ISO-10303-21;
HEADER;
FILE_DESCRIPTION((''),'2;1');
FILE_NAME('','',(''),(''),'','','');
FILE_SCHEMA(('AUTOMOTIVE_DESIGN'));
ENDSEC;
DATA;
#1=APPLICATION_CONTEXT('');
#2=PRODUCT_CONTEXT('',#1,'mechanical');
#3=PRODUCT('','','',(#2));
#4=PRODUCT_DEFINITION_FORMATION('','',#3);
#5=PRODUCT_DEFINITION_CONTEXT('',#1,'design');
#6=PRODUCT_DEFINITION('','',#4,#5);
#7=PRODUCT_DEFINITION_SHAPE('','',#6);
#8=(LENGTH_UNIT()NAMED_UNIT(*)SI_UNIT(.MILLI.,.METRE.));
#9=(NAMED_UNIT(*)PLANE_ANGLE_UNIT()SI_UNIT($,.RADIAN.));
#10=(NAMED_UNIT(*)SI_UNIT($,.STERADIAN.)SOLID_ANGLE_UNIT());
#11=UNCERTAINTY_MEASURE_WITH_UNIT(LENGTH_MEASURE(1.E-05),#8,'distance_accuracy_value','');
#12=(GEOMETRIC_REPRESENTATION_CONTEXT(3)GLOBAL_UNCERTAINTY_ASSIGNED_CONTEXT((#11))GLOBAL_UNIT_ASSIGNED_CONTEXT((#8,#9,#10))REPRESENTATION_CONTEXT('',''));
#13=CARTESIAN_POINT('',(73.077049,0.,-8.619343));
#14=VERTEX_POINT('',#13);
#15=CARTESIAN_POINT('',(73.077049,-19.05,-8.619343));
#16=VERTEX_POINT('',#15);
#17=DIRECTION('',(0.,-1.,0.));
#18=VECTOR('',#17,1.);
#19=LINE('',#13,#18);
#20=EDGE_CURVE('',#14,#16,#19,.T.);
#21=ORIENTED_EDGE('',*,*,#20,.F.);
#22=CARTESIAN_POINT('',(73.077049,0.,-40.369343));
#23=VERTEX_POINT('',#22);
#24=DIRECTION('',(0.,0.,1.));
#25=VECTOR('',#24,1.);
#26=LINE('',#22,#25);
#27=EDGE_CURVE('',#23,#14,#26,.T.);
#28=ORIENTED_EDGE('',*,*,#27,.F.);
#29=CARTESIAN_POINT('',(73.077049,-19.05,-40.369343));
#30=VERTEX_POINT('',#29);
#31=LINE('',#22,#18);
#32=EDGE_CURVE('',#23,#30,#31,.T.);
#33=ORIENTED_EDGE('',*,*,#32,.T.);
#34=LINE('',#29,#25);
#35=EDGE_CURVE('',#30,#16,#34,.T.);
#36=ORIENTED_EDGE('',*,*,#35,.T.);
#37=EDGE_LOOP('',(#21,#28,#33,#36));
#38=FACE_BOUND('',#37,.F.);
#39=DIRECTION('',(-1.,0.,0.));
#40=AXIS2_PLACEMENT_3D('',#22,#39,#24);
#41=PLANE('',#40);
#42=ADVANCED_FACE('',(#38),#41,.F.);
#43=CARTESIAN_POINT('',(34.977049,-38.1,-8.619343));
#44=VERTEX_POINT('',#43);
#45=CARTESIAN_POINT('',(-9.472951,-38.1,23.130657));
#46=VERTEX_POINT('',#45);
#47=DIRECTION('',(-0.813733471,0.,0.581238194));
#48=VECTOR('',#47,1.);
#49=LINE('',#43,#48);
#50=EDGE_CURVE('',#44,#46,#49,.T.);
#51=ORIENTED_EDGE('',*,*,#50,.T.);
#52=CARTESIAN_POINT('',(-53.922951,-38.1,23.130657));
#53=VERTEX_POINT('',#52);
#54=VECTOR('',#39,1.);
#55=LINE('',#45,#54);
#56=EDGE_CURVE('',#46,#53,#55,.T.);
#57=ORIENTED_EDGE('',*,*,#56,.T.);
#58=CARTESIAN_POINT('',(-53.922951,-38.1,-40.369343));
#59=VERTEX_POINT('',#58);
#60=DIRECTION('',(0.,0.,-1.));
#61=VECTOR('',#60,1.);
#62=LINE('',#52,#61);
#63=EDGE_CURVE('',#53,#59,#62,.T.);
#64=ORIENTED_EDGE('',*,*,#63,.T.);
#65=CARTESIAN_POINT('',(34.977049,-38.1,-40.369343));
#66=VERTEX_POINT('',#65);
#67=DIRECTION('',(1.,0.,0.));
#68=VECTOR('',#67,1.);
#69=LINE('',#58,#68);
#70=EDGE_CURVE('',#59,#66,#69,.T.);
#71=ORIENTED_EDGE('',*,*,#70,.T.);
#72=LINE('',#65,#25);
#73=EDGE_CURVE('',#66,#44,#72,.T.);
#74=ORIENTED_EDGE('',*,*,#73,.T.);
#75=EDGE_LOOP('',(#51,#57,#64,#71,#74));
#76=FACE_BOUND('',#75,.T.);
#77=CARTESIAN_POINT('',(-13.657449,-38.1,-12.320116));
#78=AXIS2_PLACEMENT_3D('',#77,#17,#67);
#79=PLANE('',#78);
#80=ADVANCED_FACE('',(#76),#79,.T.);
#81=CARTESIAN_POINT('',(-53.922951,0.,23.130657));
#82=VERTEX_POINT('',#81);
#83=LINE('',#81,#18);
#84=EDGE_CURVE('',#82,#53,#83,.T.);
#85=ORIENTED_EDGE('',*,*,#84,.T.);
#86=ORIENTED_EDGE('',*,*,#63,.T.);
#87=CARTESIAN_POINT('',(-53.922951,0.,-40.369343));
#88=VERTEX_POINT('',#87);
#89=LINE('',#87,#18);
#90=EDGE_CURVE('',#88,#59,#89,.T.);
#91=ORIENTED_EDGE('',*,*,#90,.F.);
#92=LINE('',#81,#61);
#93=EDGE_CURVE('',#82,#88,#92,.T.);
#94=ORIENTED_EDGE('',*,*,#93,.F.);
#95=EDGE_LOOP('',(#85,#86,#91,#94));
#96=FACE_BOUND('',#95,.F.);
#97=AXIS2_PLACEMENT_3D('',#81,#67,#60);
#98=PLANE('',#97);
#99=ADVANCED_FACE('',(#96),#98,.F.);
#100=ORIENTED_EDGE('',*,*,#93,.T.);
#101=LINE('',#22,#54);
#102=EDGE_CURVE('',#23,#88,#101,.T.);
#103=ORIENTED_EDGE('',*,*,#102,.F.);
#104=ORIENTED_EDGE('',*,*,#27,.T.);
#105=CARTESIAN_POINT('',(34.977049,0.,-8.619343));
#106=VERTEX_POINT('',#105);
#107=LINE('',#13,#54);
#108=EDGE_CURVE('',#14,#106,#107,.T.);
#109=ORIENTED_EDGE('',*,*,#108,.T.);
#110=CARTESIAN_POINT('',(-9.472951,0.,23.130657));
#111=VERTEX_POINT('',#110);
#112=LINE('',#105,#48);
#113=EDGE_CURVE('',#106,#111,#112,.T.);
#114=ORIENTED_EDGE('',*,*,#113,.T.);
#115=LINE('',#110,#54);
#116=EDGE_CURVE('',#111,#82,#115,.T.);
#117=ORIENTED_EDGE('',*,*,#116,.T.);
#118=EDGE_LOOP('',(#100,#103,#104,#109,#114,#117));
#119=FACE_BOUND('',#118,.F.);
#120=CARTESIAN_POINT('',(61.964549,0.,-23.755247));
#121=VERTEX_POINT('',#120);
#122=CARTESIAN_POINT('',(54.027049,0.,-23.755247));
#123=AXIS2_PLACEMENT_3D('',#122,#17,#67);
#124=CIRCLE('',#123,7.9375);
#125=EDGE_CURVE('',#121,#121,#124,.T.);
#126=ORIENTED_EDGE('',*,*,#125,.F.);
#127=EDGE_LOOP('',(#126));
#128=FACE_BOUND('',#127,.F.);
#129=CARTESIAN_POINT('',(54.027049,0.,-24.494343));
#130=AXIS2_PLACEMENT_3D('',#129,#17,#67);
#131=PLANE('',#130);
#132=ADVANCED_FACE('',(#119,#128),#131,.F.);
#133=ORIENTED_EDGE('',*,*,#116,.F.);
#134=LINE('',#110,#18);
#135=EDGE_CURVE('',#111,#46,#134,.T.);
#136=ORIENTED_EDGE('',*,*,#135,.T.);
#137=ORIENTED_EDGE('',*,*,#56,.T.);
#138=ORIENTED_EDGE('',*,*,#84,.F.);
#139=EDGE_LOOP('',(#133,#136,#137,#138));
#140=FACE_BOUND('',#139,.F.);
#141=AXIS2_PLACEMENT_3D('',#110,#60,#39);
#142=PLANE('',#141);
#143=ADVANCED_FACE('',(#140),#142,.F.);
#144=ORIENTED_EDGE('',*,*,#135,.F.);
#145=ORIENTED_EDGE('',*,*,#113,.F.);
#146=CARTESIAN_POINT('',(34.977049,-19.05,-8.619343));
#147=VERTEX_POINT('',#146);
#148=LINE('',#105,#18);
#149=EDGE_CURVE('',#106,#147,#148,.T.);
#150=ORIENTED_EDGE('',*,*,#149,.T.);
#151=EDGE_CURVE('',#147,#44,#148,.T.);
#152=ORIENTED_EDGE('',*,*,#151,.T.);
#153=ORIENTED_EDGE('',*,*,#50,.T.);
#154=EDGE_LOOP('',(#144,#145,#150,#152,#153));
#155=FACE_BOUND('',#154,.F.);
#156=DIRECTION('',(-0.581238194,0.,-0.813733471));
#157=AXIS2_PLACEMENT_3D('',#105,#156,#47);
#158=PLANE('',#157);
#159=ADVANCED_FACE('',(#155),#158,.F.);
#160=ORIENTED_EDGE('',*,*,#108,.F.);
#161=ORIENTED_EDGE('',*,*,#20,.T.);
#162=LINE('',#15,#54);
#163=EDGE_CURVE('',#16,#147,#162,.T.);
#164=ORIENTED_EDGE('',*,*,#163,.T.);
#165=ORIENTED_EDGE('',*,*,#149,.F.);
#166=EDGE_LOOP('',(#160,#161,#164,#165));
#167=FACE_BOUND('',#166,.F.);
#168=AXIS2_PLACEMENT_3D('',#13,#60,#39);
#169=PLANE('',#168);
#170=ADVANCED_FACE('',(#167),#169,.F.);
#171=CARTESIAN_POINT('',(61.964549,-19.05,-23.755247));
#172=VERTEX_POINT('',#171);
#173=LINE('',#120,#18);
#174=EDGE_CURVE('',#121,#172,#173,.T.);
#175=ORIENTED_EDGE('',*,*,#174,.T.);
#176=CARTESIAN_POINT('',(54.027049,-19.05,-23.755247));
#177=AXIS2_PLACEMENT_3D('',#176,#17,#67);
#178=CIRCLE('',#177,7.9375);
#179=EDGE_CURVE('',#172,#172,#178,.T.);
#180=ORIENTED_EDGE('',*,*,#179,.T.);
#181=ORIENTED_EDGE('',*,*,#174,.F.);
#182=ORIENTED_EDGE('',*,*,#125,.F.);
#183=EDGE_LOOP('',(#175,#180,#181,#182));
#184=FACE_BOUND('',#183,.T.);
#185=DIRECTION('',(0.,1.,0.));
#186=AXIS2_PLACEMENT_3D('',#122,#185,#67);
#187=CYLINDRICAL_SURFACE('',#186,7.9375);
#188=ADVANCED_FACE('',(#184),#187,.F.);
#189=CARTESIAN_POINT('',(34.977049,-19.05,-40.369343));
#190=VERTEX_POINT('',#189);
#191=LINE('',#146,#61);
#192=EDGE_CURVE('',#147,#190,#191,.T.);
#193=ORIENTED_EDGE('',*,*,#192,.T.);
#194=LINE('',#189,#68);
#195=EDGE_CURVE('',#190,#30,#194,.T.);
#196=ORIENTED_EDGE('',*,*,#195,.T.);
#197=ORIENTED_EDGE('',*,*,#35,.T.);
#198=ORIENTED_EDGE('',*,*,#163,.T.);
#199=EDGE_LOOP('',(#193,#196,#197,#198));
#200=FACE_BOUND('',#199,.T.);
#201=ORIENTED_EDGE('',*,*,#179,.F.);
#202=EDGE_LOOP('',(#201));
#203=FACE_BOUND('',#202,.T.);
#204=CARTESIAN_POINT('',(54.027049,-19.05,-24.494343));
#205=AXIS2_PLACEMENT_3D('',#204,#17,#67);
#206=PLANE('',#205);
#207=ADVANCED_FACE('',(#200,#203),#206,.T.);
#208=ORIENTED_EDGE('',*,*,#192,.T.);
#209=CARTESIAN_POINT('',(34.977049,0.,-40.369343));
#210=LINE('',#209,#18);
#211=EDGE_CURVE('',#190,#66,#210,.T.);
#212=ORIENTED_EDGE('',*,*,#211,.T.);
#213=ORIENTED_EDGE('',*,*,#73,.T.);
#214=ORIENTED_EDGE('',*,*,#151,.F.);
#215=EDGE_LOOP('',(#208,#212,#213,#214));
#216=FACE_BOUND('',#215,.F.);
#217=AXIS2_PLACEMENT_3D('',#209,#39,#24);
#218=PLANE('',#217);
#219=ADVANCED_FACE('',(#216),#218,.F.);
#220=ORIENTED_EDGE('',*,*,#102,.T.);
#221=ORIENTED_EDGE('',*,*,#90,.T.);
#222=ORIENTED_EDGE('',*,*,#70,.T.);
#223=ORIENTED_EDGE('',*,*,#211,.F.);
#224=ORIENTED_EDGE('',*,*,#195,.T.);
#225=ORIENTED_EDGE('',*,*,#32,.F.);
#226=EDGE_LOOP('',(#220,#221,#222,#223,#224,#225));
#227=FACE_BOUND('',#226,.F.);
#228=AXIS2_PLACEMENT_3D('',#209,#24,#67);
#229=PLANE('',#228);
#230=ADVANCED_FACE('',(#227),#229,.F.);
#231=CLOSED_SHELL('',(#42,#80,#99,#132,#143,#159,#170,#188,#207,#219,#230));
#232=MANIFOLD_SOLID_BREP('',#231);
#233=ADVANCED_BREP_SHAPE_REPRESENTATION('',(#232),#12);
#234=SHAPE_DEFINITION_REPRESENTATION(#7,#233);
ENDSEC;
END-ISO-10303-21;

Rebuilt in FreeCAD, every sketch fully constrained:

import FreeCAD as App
import Part
import Sketcher

V = App.Vector
Q = App.Units.Quantity


def add_polygon(sketch, points):
    """Adds a closed chain of lines whose ends are joined by coincident constraints."""
    first, n = sketch.GeometryCount, len(points)
    for a, b in zip(points, points[1:] + points[:1]):
        sketch.addGeometry(Part.LineSegment(App.Vector(*a, 0), App.Vector(*b, 0)), False)
    for i in range(n):
        sketch.addConstraint(Sketcher.Constraint("Coincident", first + i, 2, first + (i + 1) % n, 1))

doc = App.newDocument("Part")
body = doc.addObject("PartDesign::Body", "Body")

# Sketch on XZ plane
sketch1 = body.newObject("Sketcher::SketchObject", "Sketch")
sketch1.AttachmentSupport = (doc.getObject("XZ_Plane"), [""])
sketch1.MapMode = "FlatFace"
add_polygon(sketch1, [(-54, 23), (-54, -40), (35, -40), (35, -9), (-9, 23)])  # lines 0-4
sketch1.addConstraint(Sketcher.Constraint("Vertical", 0))
sketch1.addConstraint(Sketcher.Constraint("Horizontal", 1))
sketch1.addConstraint(Sketcher.Constraint("Vertical", 2))
sketch1.addConstraint(Sketcher.Constraint("Horizontal", 4))
sketch1.addConstraint(Sketcher.Constraint("DistanceX", 1, 1, 1, 2, Q("3.5 in")))
sketch1.addConstraint(Sketcher.Constraint("DistanceY", 0, 2, 0, 1, Q("2.5 in")))
sketch1.addConstraint(Sketcher.Constraint("DistanceX", 4, 2, 4, 1, Q("1.75 in")))
sketch1.addConstraint(Sketcher.Constraint("DistanceY", 2, 1, 2, 2, Q("1.25 in")))
sketch1.addConstraint(Sketcher.Constraint("DistanceX", 0, 2, -1, 1, Q("53.922951 mm")))
sketch1.addConstraint(Sketcher.Constraint("DistanceY", 0, 2, -1, 1, Q("40.369343 mm")))
pad1 = body.newObject("PartDesign::Pad", "Pad")
pad1.Profile = sketch1
pad1.Length = Q("1.5 in")

# Sketch on XZ plane
sketch2 = body.newObject("Sketcher::SketchObject", "Sketch001")
sketch2.AttachmentSupport = (doc.getObject("XZ_Plane"), [""])
sketch2.MapMode = "FlatFace"
add_polygon(sketch2, [(35, -9), (35, -40), (73, -40), (73, -9)])  # lines 0-3
sketch2.addGeometry(Part.Circle(V(54, -24, 0), V(0, 0, 1), 8), False)  # 4
sketch2.addConstraint(Sketcher.Constraint("Vertical", 0))
sketch2.addConstraint(Sketcher.Constraint("Horizontal", 1))
sketch2.addConstraint(Sketcher.Constraint("Vertical", 2))
sketch2.addConstraint(Sketcher.Constraint("Horizontal", 3))
sketch2.addConstraint(Sketcher.Constraint("Diameter", 4, Q("0.625 in")))
sketch2.addConstraint(Sketcher.Constraint("DistanceX", 1, 1, 1, 2, Q("1.5 in")))
sketch2.addConstraint(Sketcher.Constraint("DistanceY", 0, 2, 0, 1, Q("1.25 in")))
sketch2.addConstraint(Sketcher.Constraint("DistanceX", 0, 2, 4, 3, Q("0.75 in")))
sketch2.addConstraint(Sketcher.Constraint("DistanceX", -1, 1, 4, 3, Q("54.027049 mm")))
sketch2.addConstraint(Sketcher.Constraint("DistanceY", 4, 3, -1, 1, Q("23.755247 mm")))
sketch2.addConstraint(Sketcher.Constraint("DistanceY", 0, 2, -1, 1, Q("40.369343 mm")))
pad2 = body.newObject("PartDesign::Pad", "Pad001")
pad2.Profile = sketch2
pad2.Length = Q("0.75 in")

doc.recompute()
